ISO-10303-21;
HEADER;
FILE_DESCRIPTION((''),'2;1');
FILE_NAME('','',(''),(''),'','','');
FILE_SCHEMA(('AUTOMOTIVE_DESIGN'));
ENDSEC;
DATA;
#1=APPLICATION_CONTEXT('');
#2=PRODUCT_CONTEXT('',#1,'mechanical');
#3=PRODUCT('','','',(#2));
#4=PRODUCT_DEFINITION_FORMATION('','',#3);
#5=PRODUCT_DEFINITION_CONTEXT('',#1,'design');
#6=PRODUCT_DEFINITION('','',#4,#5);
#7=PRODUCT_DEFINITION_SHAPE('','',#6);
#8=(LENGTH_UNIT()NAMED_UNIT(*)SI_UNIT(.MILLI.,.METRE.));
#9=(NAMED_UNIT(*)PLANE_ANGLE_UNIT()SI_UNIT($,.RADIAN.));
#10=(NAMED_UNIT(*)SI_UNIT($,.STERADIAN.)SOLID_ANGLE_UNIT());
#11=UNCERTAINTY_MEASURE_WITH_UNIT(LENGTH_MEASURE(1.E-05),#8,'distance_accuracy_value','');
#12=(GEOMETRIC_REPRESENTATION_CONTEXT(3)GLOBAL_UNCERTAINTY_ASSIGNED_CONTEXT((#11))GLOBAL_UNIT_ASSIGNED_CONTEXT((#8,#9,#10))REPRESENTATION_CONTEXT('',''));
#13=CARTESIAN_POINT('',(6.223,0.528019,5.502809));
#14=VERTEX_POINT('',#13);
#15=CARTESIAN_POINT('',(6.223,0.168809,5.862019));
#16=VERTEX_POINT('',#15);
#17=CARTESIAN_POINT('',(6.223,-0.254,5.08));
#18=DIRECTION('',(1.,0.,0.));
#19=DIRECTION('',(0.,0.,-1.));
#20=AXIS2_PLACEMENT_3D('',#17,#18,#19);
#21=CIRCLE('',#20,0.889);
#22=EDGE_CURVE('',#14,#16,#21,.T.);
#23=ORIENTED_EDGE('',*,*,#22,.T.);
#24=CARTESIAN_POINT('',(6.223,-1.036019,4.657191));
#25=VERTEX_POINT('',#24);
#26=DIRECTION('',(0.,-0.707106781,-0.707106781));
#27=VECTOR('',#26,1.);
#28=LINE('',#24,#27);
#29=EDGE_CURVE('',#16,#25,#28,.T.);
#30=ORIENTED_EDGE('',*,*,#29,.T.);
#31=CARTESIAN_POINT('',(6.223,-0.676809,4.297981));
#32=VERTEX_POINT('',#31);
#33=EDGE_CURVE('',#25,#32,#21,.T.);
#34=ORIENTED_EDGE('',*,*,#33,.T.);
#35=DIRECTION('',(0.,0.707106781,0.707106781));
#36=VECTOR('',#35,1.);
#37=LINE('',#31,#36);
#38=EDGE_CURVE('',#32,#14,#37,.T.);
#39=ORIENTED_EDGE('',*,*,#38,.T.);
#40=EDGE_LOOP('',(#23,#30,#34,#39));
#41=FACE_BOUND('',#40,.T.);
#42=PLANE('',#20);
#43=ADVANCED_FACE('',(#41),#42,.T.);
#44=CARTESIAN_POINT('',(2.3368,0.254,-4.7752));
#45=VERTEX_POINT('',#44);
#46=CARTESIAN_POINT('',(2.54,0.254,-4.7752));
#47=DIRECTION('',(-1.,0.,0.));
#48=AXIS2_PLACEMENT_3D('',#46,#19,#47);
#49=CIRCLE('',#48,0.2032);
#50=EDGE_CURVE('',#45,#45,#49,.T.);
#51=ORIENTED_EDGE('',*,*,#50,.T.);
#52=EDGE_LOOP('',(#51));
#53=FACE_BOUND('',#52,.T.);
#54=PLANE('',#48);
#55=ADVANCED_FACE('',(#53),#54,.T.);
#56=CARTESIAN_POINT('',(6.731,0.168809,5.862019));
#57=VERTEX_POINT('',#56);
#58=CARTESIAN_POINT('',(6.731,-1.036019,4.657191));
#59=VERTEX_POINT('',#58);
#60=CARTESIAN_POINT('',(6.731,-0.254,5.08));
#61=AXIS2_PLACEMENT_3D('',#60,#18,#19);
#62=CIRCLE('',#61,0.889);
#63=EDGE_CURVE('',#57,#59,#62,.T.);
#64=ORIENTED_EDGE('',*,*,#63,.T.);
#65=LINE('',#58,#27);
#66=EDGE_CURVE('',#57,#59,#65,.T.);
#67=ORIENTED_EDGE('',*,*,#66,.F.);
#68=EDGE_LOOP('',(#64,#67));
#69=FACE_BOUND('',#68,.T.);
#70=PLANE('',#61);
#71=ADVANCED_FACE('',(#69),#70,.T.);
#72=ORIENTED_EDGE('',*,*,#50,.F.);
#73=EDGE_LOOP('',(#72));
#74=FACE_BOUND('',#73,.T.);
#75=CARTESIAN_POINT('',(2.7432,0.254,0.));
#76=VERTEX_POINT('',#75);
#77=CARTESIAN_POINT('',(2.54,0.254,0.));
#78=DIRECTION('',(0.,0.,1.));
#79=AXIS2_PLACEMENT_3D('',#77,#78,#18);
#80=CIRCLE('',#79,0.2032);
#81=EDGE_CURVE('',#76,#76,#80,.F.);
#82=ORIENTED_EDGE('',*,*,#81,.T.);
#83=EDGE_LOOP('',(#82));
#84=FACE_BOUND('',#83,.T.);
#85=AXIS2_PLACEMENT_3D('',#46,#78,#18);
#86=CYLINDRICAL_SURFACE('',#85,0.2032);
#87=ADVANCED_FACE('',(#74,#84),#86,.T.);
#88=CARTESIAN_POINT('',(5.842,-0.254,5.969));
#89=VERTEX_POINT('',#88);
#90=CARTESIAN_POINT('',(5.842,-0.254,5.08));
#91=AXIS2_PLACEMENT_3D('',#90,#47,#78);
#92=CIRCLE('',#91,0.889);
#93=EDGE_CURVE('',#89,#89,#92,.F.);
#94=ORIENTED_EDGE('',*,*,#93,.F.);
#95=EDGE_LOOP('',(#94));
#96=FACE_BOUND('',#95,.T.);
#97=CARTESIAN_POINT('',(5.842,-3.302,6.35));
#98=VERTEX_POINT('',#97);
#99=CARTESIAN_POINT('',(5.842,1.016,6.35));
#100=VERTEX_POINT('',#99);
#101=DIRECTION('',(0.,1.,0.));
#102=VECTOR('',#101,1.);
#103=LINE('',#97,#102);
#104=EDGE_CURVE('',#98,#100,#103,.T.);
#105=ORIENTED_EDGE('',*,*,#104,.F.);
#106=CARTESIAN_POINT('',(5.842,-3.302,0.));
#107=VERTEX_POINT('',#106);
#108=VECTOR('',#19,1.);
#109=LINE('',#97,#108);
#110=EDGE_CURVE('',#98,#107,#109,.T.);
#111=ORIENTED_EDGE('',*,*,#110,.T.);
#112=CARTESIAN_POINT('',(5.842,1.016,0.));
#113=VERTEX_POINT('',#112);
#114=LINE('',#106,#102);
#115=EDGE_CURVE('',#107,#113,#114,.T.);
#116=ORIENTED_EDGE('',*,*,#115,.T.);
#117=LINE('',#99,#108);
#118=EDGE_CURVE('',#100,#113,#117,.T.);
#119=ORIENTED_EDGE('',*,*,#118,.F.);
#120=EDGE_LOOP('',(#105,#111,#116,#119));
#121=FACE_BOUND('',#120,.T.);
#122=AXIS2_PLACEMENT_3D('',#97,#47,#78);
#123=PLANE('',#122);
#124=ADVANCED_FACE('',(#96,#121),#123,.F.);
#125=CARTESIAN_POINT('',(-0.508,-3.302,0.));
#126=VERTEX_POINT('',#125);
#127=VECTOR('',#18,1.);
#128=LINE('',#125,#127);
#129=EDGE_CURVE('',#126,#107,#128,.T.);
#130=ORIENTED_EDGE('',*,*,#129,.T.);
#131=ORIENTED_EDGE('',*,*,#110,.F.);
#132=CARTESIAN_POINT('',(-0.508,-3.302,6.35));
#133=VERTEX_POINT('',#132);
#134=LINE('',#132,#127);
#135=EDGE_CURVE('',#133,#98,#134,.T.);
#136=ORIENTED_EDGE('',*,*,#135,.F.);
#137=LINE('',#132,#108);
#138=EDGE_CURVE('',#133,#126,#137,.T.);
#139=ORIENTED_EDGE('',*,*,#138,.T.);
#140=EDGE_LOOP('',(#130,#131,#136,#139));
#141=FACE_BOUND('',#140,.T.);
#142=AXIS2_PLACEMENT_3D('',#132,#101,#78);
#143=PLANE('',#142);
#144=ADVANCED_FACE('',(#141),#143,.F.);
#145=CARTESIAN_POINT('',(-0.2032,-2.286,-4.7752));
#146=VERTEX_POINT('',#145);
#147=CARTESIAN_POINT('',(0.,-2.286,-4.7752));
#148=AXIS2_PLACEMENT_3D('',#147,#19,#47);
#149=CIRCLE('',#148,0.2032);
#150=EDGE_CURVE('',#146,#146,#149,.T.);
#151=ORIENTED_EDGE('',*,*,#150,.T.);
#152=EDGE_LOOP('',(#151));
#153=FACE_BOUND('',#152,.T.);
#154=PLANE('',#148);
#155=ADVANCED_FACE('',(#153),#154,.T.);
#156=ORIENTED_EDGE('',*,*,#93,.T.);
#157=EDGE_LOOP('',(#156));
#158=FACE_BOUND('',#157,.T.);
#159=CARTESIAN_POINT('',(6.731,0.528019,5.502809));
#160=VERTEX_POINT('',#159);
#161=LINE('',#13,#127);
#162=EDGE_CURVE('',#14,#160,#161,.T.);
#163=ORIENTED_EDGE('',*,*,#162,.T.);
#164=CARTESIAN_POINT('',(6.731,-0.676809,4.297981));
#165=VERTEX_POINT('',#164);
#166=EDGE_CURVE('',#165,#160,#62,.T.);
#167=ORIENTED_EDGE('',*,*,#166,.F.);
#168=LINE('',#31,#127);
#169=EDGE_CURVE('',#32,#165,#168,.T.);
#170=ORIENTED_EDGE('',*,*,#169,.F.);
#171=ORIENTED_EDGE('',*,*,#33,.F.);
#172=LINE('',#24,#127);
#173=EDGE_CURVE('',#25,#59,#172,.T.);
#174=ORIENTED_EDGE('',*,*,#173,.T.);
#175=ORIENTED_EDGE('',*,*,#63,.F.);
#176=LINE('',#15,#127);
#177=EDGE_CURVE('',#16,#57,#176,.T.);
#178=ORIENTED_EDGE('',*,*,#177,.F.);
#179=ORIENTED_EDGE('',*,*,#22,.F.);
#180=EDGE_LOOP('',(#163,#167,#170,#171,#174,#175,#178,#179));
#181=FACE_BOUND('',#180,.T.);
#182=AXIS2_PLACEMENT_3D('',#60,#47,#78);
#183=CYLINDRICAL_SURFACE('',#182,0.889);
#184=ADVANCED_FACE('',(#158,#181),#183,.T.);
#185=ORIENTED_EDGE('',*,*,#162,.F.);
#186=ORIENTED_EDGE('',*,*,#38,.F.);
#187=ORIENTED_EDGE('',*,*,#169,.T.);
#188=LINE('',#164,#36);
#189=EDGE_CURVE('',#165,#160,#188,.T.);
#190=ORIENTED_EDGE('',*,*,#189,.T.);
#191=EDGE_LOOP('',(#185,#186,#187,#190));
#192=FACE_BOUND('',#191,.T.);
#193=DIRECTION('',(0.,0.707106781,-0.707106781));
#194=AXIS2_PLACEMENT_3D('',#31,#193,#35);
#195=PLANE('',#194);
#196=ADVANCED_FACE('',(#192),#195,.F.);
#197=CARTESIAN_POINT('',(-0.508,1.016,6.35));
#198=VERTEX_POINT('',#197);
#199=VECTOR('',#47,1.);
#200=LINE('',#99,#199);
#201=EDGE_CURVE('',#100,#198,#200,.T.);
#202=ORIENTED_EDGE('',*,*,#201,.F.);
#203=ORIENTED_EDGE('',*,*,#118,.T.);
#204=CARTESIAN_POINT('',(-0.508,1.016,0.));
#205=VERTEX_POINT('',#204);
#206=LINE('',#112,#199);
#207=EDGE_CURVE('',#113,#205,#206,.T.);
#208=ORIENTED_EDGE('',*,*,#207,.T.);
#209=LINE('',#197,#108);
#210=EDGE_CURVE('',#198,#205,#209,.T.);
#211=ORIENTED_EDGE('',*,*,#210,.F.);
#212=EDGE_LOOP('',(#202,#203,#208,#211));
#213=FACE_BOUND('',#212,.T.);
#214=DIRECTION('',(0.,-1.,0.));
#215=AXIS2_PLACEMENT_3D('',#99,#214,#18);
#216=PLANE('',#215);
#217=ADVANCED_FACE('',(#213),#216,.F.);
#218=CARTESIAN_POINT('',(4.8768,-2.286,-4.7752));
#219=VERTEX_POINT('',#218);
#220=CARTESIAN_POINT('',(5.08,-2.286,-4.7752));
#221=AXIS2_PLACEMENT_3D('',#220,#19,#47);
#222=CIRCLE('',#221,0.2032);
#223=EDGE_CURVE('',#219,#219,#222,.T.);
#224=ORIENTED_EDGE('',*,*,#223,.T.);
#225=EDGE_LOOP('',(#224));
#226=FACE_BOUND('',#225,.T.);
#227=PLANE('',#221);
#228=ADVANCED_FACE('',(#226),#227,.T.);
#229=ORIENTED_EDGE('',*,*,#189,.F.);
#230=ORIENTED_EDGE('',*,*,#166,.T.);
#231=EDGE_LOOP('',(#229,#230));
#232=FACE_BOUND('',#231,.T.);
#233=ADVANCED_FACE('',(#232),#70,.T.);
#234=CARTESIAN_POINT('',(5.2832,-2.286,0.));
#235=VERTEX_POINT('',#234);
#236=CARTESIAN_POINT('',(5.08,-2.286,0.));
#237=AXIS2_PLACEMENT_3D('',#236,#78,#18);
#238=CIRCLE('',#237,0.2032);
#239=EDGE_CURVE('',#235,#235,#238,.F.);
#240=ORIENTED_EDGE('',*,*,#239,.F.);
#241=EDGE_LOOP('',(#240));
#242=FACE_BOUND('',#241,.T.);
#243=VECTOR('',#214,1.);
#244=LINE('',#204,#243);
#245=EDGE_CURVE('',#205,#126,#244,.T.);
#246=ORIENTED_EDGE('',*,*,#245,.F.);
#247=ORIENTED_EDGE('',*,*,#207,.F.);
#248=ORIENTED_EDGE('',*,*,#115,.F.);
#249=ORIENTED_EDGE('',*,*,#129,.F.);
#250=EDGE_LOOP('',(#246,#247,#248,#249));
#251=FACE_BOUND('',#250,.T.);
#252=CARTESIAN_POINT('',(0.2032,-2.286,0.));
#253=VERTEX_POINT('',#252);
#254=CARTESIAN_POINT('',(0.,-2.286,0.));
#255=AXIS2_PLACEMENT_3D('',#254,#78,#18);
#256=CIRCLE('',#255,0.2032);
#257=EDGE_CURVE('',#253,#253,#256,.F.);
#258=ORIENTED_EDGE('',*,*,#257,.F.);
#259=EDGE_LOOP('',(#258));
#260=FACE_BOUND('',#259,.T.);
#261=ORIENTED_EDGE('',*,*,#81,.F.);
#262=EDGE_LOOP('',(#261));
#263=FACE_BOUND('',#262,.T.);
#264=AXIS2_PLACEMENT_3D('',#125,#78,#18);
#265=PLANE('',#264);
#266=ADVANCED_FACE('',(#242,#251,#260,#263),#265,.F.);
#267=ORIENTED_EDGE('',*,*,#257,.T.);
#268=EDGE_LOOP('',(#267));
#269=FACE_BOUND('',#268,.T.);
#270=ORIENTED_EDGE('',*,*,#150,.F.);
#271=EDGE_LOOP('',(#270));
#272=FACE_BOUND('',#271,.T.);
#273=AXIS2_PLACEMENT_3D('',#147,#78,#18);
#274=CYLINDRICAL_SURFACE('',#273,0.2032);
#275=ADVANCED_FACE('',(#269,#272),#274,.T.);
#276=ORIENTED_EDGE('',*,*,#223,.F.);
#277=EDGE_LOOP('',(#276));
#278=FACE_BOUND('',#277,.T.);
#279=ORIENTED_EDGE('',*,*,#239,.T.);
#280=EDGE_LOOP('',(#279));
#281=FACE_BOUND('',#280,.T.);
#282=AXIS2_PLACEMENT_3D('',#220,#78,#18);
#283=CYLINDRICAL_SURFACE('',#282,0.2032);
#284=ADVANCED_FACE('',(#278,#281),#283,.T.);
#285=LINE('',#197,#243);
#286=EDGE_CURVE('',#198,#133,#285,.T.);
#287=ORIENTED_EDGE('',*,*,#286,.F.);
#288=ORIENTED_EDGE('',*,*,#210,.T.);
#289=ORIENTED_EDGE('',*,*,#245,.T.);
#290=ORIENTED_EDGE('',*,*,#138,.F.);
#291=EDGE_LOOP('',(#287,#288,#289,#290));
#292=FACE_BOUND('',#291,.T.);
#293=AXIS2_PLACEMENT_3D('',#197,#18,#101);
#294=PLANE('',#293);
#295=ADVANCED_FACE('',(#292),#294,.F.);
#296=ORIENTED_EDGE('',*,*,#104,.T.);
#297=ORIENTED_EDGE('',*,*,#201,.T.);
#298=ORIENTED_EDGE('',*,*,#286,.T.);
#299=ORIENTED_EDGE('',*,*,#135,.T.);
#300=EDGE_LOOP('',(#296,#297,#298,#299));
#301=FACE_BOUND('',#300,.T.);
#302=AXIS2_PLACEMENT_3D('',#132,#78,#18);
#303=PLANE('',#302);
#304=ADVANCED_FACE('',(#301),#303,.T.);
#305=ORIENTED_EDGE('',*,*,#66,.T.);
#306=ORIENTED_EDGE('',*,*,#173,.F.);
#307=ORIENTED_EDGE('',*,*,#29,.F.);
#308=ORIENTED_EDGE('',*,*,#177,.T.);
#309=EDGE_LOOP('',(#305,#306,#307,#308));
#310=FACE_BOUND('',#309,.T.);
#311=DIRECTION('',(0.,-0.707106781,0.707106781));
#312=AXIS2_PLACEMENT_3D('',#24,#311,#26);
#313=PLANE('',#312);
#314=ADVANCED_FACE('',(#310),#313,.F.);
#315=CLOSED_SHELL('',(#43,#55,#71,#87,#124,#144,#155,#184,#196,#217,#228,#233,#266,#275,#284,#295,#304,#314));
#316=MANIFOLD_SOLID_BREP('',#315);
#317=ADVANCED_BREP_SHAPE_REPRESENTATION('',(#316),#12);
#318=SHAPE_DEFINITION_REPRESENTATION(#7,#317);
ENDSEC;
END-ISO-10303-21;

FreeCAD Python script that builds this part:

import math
import FreeCAD as App
import Part
import Sketcher

V = App.Vector
Q = App.Units.Quantity

doc = App.newDocument("Part")
body = doc.addObject("PartDesign::Body", "Body")

# Sketch on XY plane
sketch1 = body.newObject("Sketcher::SketchObject", "Sketch")
sketch1.AttachmentSupport = (doc.getObject("XY_Plane"), [""])
sketch1.MapMode = "FlatFace"
sketch1.addGeometry([
    Part.LineSegment(V(-0.5, 1, 0), V(-0.5, -3.3, 0)),
    Part.LineSegment(V(-0.5, -3.3, 0), V(5.8, -3.3, 0)),
    Part.LineSegment(V(5.8, -3.3, 0), V(5.8, 1, 0)),
    Part.LineSegment(V(5.8, 1, 0), V(-0.5, 1, 0)),
], False)
sketch1.addConstraint([
    Sketcher.Constraint("Coincident", 0, 2, 1, 1),
    Sketcher.Constraint("Coincident", 1, 2, 2, 1),
    Sketcher.Constraint("Coincident", 2, 2, 3, 1),
    Sketcher.Constraint("Coincident", 3, 2, 0, 1),
    Sketcher.Constraint("Vertical", 0),
    Sketcher.Constraint("Horizontal", 1),
    Sketcher.Constraint("Vertical", 2),
    Sketcher.Constraint("Horizontal", 3),
    Sketcher.Constraint("DistanceX", 1, 1, 1, 2, Q("0.25 in")),
    Sketcher.Constraint("DistanceY", 0, 2, 0, 1, Q("0.17 in")),
    Sketcher.Constraint("DistanceX", 0, 2, -1, 1, Q("0.02 in")),
    Sketcher.Constraint("DistanceY", 0, 2, -1, 1, Q("0.13 in")),
])
pad1 = body.newObject("PartDesign::Pad", "Pad")
pad1.Profile = sketch1
pad1.Length = Q("0.25 in")

# Sketch on YZ plane
sketch2 = body.newObject("Sketcher::SketchObject", "Sketch001")
sketch2.AttachmentSupport = (doc.getObject("YZ_Plane"), [""])
sketch2.MapMode = "FlatFace"
sketch2.AttachmentOffset = App.Placement(V(0, 0, 0.23 * 25.4), App.Rotation())
sketch2.addGeometry(Part.Circle(V(-0.3, 5.1, 0), V(0, 0, 1), 0.9), False)
sketch2.addConstraint([
    Sketcher.Constraint("Diameter", 0, Q("0.07 in")),
    Sketcher.Constraint("DistanceY", -1, 1, 0, 3, Q("0.2 in")),
    Sketcher.Constraint("DistanceX", 0, 3, -1, 1, Q("0.01 in")),
])
pad2 = body.newObject("PartDesign::Pad", "Pad001")
pad2.Profile = sketch2
pad2.Length = Q("0.035 in")

# Sketch on YZ plane
sketch3 = body.newObject("Sketcher::SketchObject", "Sketch002")
sketch3.AttachmentSupport = (doc.getObject("YZ_Plane"), [""])
sketch3.MapMode = "FlatFace"
sketch3.AttachmentOffset = App.Placement(V(0, 0, 0.245 * 25.4), App.Rotation())
sketch3.addGeometry([
    Part.LineSegment(V(-0.7, 4.3, 0), V(0.5, 5.5, 0)),
    Part.ArcOfCircle(Part.Circle(V(-0.3, 5.1, 0), V(0, 0, 1), 0.9), math.radians(28), math.radians(62)),
    Part.LineSegment(V(0.2, 5.9, 0), V(-1, 4.7, 0)),
    Part.ArcOfCircle(Part.Circle(V(-0.3, 5.1, 0), V(0, 0, 1), 0.9), math.radians(-152), math.radians(-118)),
], False)
sketch3.addConstraint([
    Sketcher.Constraint("Coincident", 0, 2, 1, 1),
    Sketcher.Constraint("Coincident", 1, 2, 2, 1),
    Sketcher.Constraint("Coincident", 2, 2, 3, 1),
    Sketcher.Constraint("Coincident", 3, 2, 0, 1),
    Sketcher.Constraint("Coincident", 3, 3, 1, 3),
    Sketcher.Constraint("Equal", 1, 3),
    Sketcher.Constraint("Parallel", 0, 2),
    Sketcher.Constraint("Equal", 0, 2),
    Sketcher.Constraint("Angle", 0, Q("45 deg")),
    Sketcher.Constraint("Radius", 1, Q("0.035 in")),
    Sketcher.Constraint("DistanceY", -1, 1, 1, 3, Q("0.2 in")),
    Sketcher.Constraint("DistanceX", 1, 3, -1, 1, Q("0.01 in")),
    Sketcher.Constraint("DistanceX", -1, 1, 0, 2, Q("0.528019 mm")),
])
pocket1 = body.newObject("PartDesign::Pocket", "Pocket")
pocket1.Profile = sketch3
pocket1.Length = Q("0.02 in")
pocket1.Reversed = True

# Sketch on XY plane
sketch4 = body.newObject("Sketcher::SketchObject", "Sketch003")
sketch4.AttachmentSupport = (doc.getObject("XY_Plane"), [""])
sketch4.MapMode = "FlatFace"
sketch4.addGeometry([
    Part.Circle(V(0, -2.29, 0), V(0, 0, 1), 0.2),
    Part.Circle(V(5.08, -2.29, 0), V(0, 0, 1), 0.2),
    Part.Circle(V(2.54, 0.25, 0), V(0, 0, 1), 0.2),
], False)
sketch4.addConstraint([
    Sketcher.Constraint("Equal", 0, 1),
    Sketcher.Constraint("Equal", 1, 2),
    Sketcher.Constraint("PointOnObject", 0, 3, -2),
    Sketcher.Constraint("Horizontal", 0, 3, 1, 3),
    Sketcher.Constraint("Diameter", 0, Q("0.016 in")),
    Sketcher.Constraint("DistanceX", -1, 1, 1, 3, Q("0.2 in")),
    Sketcher.Constraint("DistanceX", -1, 1, 2, 3, Q("0.1 in")),
    Sketcher.Constraint("DistanceY", 0, 3, 2, 3, Q("0.1 in")),
    Sketcher.Constraint("DistanceY", 0, 3, -1, 1, Q("0.09 in")),
])
pad3 = body.newObject("PartDesign::Pad", "Pad002")
pad3.Profile = sketch4
pad3.Length = Q("0.188 in")
pad3.Reversed = True

doc.recompute()
